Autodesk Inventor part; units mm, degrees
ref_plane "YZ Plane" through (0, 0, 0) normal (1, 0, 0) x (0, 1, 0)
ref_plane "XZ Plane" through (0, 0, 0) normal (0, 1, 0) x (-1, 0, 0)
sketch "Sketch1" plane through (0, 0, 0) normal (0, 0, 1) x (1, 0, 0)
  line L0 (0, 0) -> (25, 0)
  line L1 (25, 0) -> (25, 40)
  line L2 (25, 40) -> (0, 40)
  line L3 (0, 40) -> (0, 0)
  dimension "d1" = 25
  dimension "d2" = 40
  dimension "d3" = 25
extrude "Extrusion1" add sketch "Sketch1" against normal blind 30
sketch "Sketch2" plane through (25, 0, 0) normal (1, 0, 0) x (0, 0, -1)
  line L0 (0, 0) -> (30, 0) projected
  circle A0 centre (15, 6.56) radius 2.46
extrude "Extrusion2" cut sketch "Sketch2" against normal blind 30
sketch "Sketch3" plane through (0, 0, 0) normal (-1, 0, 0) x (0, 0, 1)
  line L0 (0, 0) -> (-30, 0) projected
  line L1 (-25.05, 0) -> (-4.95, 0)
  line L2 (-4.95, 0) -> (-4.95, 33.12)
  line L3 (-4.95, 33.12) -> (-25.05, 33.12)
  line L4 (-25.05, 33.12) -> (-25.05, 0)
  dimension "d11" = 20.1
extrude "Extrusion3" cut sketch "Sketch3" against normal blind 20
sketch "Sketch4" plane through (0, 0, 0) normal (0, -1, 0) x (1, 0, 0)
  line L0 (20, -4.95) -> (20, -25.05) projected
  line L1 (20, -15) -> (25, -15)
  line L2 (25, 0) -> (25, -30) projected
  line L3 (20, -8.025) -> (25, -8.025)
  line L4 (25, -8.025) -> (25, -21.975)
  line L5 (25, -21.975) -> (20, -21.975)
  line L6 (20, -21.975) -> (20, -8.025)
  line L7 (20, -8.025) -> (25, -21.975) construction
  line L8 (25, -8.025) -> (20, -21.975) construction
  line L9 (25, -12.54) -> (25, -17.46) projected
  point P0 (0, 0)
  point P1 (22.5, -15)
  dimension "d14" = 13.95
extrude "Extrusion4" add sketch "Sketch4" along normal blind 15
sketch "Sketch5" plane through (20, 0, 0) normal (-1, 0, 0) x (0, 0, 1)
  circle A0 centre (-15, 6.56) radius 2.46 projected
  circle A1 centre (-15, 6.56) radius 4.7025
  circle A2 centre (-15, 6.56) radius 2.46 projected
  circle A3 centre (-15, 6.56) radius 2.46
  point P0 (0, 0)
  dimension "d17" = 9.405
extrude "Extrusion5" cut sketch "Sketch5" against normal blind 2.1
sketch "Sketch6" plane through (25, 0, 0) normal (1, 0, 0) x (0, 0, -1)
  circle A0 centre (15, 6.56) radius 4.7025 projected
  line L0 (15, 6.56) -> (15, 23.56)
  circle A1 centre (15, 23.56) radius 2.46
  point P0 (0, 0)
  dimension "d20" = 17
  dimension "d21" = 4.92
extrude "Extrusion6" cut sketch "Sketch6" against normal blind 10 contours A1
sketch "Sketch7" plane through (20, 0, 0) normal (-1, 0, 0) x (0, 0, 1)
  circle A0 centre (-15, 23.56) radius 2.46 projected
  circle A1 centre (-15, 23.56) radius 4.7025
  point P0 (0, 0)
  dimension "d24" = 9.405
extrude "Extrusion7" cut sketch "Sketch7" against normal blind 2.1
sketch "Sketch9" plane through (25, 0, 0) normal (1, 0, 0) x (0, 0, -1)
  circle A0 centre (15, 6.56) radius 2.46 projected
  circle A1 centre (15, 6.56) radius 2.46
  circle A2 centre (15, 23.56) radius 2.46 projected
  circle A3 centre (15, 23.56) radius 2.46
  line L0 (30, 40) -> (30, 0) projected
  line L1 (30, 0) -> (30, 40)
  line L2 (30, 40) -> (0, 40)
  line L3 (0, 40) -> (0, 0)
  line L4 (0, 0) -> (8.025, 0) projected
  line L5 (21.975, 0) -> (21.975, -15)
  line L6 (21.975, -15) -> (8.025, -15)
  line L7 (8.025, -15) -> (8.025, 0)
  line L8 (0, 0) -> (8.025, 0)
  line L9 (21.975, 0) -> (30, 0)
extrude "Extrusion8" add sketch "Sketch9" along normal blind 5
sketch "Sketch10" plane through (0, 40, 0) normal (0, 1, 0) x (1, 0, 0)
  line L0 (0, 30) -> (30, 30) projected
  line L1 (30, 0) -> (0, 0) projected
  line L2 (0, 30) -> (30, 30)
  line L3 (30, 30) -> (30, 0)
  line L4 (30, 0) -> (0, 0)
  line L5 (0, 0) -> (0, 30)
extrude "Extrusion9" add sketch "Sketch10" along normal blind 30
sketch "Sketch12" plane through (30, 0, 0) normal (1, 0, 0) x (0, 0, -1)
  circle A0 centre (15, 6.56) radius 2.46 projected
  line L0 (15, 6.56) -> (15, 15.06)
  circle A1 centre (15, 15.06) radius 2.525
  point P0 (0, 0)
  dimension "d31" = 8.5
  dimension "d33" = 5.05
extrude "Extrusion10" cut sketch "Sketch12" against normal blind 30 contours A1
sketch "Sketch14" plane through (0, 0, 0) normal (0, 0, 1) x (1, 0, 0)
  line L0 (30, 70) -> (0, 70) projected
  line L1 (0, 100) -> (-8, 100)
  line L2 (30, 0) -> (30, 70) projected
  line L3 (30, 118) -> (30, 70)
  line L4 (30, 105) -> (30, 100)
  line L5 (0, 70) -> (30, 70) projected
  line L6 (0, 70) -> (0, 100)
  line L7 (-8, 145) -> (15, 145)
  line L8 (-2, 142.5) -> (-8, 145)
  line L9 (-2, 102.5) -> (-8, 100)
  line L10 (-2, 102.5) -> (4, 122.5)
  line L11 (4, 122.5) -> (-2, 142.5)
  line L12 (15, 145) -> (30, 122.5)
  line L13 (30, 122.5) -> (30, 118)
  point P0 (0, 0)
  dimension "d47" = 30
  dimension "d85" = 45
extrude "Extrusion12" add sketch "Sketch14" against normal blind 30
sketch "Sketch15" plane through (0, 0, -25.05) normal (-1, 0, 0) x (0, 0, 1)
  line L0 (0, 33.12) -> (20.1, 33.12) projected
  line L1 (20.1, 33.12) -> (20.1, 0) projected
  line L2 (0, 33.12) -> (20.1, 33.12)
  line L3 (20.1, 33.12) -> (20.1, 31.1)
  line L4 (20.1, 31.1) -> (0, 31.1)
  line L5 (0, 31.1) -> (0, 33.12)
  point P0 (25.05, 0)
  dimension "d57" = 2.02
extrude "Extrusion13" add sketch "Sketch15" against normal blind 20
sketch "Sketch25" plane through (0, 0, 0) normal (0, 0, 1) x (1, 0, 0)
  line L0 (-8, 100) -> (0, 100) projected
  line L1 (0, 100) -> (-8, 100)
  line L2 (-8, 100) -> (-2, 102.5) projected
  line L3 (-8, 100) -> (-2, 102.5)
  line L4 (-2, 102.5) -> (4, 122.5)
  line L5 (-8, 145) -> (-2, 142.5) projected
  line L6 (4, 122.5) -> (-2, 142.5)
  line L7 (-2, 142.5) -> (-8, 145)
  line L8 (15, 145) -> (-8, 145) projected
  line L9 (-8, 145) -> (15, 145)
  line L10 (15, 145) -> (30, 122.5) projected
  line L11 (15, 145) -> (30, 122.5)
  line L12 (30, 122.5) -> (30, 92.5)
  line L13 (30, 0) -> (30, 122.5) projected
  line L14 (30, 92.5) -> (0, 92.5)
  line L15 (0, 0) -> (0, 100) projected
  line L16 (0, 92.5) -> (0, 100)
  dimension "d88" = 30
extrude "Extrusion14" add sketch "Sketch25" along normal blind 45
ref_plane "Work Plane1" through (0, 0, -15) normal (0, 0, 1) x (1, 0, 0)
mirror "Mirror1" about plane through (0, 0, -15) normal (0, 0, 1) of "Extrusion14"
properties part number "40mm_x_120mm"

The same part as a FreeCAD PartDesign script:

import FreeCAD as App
import Part
import Sketcher
Q = App.Units.Quantity

doc = App.newDocument("Part")
body = doc.addObject("PartDesign::Body", "Body")

# Sketch on XY plane
sketch1 = body.newObject("Sketcher::SketchObject", "Sketch")
sketch1.AttachmentSupport = (doc.getObject("XY_Plane"), [""])
sketch1.MapMode = "FlatFace"
sketch1.addGeometry([
    Part.LineSegment(App.Vector(0, 40, 0), App.Vector(0, 0, 0)),
    Part.LineSegment(App.Vector(0, 0, 0), App.Vector(25, 0, 0)),
    Part.LineSegment(App.Vector(25, 0, 0), App.Vector(25, 40, 0)),
    Part.LineSegment(App.Vector(25, 40, 0), App.Vector(0, 40, 0)),
], False)
sketch1.addConstraint([
    Sketcher.Constraint("Coincident", 0, 2, 1, 1),
    Sketcher.Constraint("Coincident", 1, 2, 2, 1),
    Sketcher.Constraint("Coincident", 2, 2, 3, 1),
    Sketcher.Constraint("Coincident", 3, 2, 0, 1),
    Sketcher.Constraint("Vertical", 0),
    Sketcher.Constraint("Horizontal", 1),
    Sketcher.Constraint("Vertical", 2),
    Sketcher.Constraint("Horizontal", 3),
    Sketcher.Constraint("Coincident", 0, 2, -1, 1),
    Sketcher.Constraint("DistanceX", 1, 1, 1, 2, Q("25 mm")),
    Sketcher.Constraint("DistanceY", 0, 2, 0, 1, Q("40 mm")),
])
pad1 = body.newObject("PartDesign::Pad", "Pad")
pad1.Profile = sketch1
pad1.Length = 30
pad1.Reversed = True

# Sketch on YZ plane
sketch2 = body.newObject("Sketcher::SketchObject", "Sketch001")
sketch2.AttachmentSupport = (doc.getObject("YZ_Plane"), [""])
sketch2.MapMode = "FlatFace"
sketch2.AttachmentOffset = App.Placement(App.Vector(0, 0, 25), App.Rotation())
sketch2.addGeometry(Part.Circle(App.Vector(6.6, -15, 0), App.Vector(0, 0, 1), 2.5), False)
sketch2.addConstraint([
    Sketcher.Constraint("Diameter", 0, Q("4.92 mm")),
    Sketcher.Constraint("DistanceY", 0, 3, -1, 1, Q("15 mm")),
    Sketcher.Constraint("DistanceX", -1, 1, 0, 3, Q("6.56 mm")),
])
pocket1 = body.newObject("PartDesign::Pocket", "Pocket")
pocket1.Profile = sketch2
pocket1.Length = 30

# Sketch on YZ plane
sketch3 = body.newObject("Sketcher::SketchObject", "Sketch002")
sketch3.AttachmentSupport = (doc.getObject("YZ_Plane"), [""])
sketch3.MapMode = "FlatFace"
sketch3.addGeometry([
    Part.LineSegment(App.Vector(0, -25, 0), App.Vector(0, -5, 0)),
    Part.LineSegment(App.Vector(0, -5, 0), App.Vector(33, -5, 0)),
    Part.LineSegment(App.Vector(33, -5, 0), App.Vector(33, -25, 0)),
    Part.LineSegment(App.Vector(33, -25, 0), App.Vector(0, -25, 0)),
], False)
sketch3.addConstraint([
    Sketcher.Constraint("Coincident", 0, 2, 1, 1),
    Sketcher.Constraint("Coincident", 1, 2, 2, 1),
    Sketcher.Constraint("Coincident", 2, 2, 3, 1),
    Sketcher.Constraint("Coincident", 3, 2, 0, 1),
    Sketcher.Constraint("Vertical", 0),
    Sketcher.Constraint("Horizontal", 1),
    Sketcher.Constraint("Vertical", 2),
    Sketcher.Constraint("Horizontal", 3),
    Sketcher.Constraint("PointOnObject", 0, 2, -2),
    Sketcher.Constraint("DistanceY", 0, 1, 0, 2, Q("20.1 mm")),
    Sketcher.Constraint("DistanceX", 1, 1, 1, 2, Q("33.12 mm")),
    Sketcher.Constraint("DistanceY", 0, 2, -1, 1, Q("4.95 mm")),
])
pocket2 = body.newObject("PartDesign::Pocket", "Pocket001")
pocket2.Profile = sketch3
pocket2.Length = 20
pocket2.Reversed = True

# Sketch on XZ plane
sketch4 = body.newObject("Sketcher::SketchObject", "Sketch003")
sketch4.AttachmentSupport = (doc.getObject("XZ_Plane"), [""])
sketch4.MapMode = "FlatFace"
sketch4.addGeometry([
    Part.LineSegment(App.Vector(25, -8, 0), App.Vector(20, -8, 0)),
    Part.LineSegment(App.Vector(20, -8, 0), App.Vector(20, -22, 0)),
    Part.LineSegment(App.Vector(20, -22, 0), App.Vector(25, -22, 0)),
    Part.LineSegment(App.Vector(25, -22, 0), App.Vector(25, -8, 0)),
], False)
sketch4.addConstraint([
    Sketcher.Constraint("Coincident", 0, 2, 1, 1),
    Sketcher.Constraint("Coincident", 1, 2, 2, 1),
    Sketcher.Constraint("Coincident", 2, 2, 3, 1),
    Sketcher.Constraint("Coincident", 3, 2, 0, 1),
    Sketcher.Constraint("Horizontal", 0),
    Sketcher.Constraint("Vertical", 1),
    Sketcher.Constraint("Horizontal", 2),
    Sketcher.Constraint("Vertical", 3),
    Sketcher.Constraint("DistanceY", 1, 2, 1, 1, Q("13.95 mm")),
    Sketcher.Constraint("DistanceX", 0, 2, 0, 1, Q("5 mm")),
    Sketcher.Constraint("DistanceX", -1, 1, 0, 2, Q("20 mm")),
    Sketcher.Constraint("DistanceY", 0, 2, -1, 1, Q("8.025 mm")),
])
pad2 = body.newObject("PartDesign::Pad", "Pad001")
pad2.Profile = sketch4
pad2.Length = 15

# Sketch on YZ plane
sketch5 = body.newObject("Sketcher::SketchObject", "Sketch004")
sketch5.AttachmentSupport = (doc.getObject("YZ_Plane"), [""])
sketch5.MapMode = "FlatFace"
sketch5.AttachmentOffset = App.Placement(App.Vector(0, 0, 20), App.Rotation())
sketch5.addGeometry([
    Part.Circle(App.Vector(6.6, -15, 0), App.Vector(0, 0, 1), 4.7),
    Part.Circle(App.Vector(6.6, -15, 0), App.Vector(0, 0, 1), 2.5),
], False)
sketch5.addConstraint([
    Sketcher.Constraint("Coincident", 1, 3, 0, 3),
    Sketcher.Constraint("Diameter", 0, Q("9.405 mm")),
    Sketcher.Constraint("Diameter", 1, Q("4.92 mm")),
    Sketcher.Constraint("DistanceY", 0, 3, -1, 1, Q("15 mm")),
    Sketcher.Constraint("DistanceX", -1, 1, 0, 3, Q("6.56 mm")),
])
pocket3 = body.newObject("PartDesign::Pocket", "Pocket002")
pocket3.Profile = sketch5
pocket3.Length = 2.1
pocket3.Reversed = True

# Sketch on YZ plane
sketch6 = body.newObject("Sketcher::SketchObject", "Sketch005")
sketch6.AttachmentSupport = (doc.getObject("YZ_Plane"), [""])
sketch6.MapMode = "FlatFace"
sketch6.AttachmentOffset = App.Placement(App.Vector(0, 0, 25), App.Rotation())
sketch6.addGeometry(Part.Circle(App.Vector(23.6, -15, 0), App.Vector(0, 0, 1), 2.5), False)
sketch6.addConstraint([
    Sketcher.Constraint("Diameter", 0, Q("4.92 mm")),
    Sketcher.Constraint("DistanceY", 0, 3, -1, 1, Q("15 mm")),
    Sketcher.Constraint("DistanceX", -1, 1, 0, 3, Q("23.56 mm")),
])
pocket4 = body.newObject("PartDesign::Pocket", "Pocket003")
pocket4.Profile = sketch6
pocket4.Length = 10

# Sketch on YZ plane
sketch7 = body.newObject("Sketcher::SketchObject", "Sketch006")
sketch7.AttachmentSupport = (doc.getObject("YZ_Plane"), [""])
sketch7.MapMode = "FlatFace"
sketch7.AttachmentOffset = App.Placement(App.Vector(0, 0, 20), App.Rotation())
sketch7.addGeometry([
    Part.Circle(App.Vector(23.6, -15, 0), App.Vector(0, 0, 1), 4.7),
    Part.Circle(App.Vector(23.6, -15, 0), App.Vector(0, 0, 1), 2.5),
], False)
sketch7.addConstraint([
    Sketcher.Constraint("Coincident", 1, 3, 0, 3),
    Sketcher.Constraint("Diameter", 0, Q("9.405 mm")),
    Sketcher.Constraint("Diameter", 1, Q("4.92 mm")),
    Sketcher.Constraint("DistanceY", 0, 3, -1, 1, Q("15 mm")),
    Sketcher.Constraint("DistanceX", -1, 1, 0, 3, Q("23.56 mm")),
])
pocket5 = body.newObject("PartDesign::Pocket", "Pocket004")
pocket5.Profile = sketch7
pocket5.Length = 2.1
pocket5.Reversed = True

# Sketch on YZ plane
sketch8 = body.newObject("Sketcher::SketchObject", "Sketch007")
sketch8.AttachmentSupport = (doc.getObject("YZ_Plane"), [""])
sketch8.MapMode = "FlatFace"
sketch8.AttachmentOffset = App.Placement(App.Vector(0, 0, 25), App.Rotation())
sketch8.addGeometry([
    Part.LineSegment(App.Vector(0, -30, 0), App.Vector(40, -30, 0)),  # 0
    Part.LineSegment(App.Vector(40, -30, 0), App.Vector(40, 0, 0)),  # 1
    Part.LineSegment(App.Vector(40, 0, 0), App.Vector(0, 0, 0)),  # 2
    Part.LineSegment(App.Vector(0, 0, 0), App.Vector(0, -8, 0)),  # 3
    Part.LineSegment(App.Vector(0, -8, 0), App.Vector(-15, -8, 0)),  # 4
    Part.LineSegment(App.Vector(-15, -8, 0), App.Vector(-15, -22, 0)),  # 5
    Part.LineSegment(App.Vector(-15, -22, 0), App.Vector(0, -22, 0)),  # 6
    Part.LineSegment(App.Vector(0, -22, 0), App.Vector(0, -30, 0)),  # 7
    Part.Circle(App.Vector(6.6, -15, 0), App.Vector(0, 0, 1), 2.5),  # 8
    Part.Circle(App.Vector(23.6, -15, 0), App.Vector(0, 0, 1), 2.5),  # 9
], False)
sketch8.addConstraint([
    Sketcher.Constraint("Coincident", 0, 2, 1, 1),
    Sketcher.Constraint("Coincident", 1, 2, 2, 1),
    Sketcher.Constraint("Coincident", 2, 2, 3, 1),
    Sketcher.Constraint("Coincident", 3, 2, 4, 1),
    Sketcher.Constraint("Coincident", 4, 2, 5, 1),
    Sketcher.Constraint("Coincident", 5, 2, 6, 1),
    Sketcher.Constraint("Coincident", 6, 2, 7, 1),
    Sketcher.Constraint("Coincident", 7, 2, 0, 1),
    Sketcher.Constraint("Horizontal", 0),
    Sketcher.Constraint("Vertical", 1),
    Sketcher.Constraint("Horizontal", 2),
    Sketcher.Constraint("Vertical", 3),
    Sketcher.Constraint("Horizontal", 4),
    Sketcher.Constraint("Vertical", 5),
    Sketcher.Constraint("Horizontal", 6),
    Sketcher.Constraint("Vertical", 7),
    Sketcher.Constraint("Coincident", 2, 2, -1, 1),
    Sketcher.Constraint("Equal", 8, 9),
    Sketcher.Constraint("PointOnObject", 6, 2, -2),
    Sketcher.Constraint("Horizontal", 8, 3, 9, 3),
    Sketcher.Constraint("Equal", 3, 7),
    Sketcher.Constraint("Diameter", 8, Q("4.92 mm")),
    Sketcher.Constraint("DistanceX", 0, 1, 0, 2, Q("40 mm")),
    Sketcher.Constraint("DistanceX", 4, 2, 4, 1, Q("15 mm")),
    Sketcher.Constraint("DistanceY", 1, 1, 1, 2, Q("30 mm")),
    Sketcher.Constraint("DistanceY", 8, 3, -1, 1, Q("15 mm")),
    Sketcher.Constraint("DistanceX", 8, 3, 9, 3, Q("17 mm")),
    Sketcher.Constraint("DistanceY", 5, 2, 5, 1, Q("13.95 mm")),
    Sketcher.Constraint("DistanceX", -1, 1, 8, 3, Q("6.56 mm")),
])
pad3 = body.newObject("PartDesign::Pad", "Pad002")
pad3.Profile = sketch8
pad3.Length = 5

# Sketch on XZ plane
sketch9 = body.newObject("Sketcher::SketchObject", "Sketch008")
sketch9.AttachmentSupport = (doc.getObject("XZ_Plane"), [""])
sketch9.MapMode = "FlatFace"
sketch9.AttachmentOffset = App.Placement(App.Vector(0, 0, -40), App.Rotation())
sketch9.addGeometry([
    Part.LineSegment(App.Vector(30, -30, 0), App.Vector(0, -30, 0)),
    Part.LineSegment(App.Vector(0, -30, 0), App.Vector(0, 0, 0)),
    Part.LineSegment(App.Vector(0, 0, 0), App.Vector(30, 0, 0)),
    Part.LineSegment(App.Vector(30, 0, 0), App.Vector(30, -30, 0)),
], False)
sketch9.addConstraint([
    Sketcher.Constraint("Coincident", 0, 2, 1, 1),
    Sketcher.Constraint("Coincident", 1, 2, 2, 1),
    Sketcher.Constraint("Coincident", 2, 2, 3, 1),
    Sketcher.Constraint("Coincident", 3, 2, 0, 1),
    Sketcher.Constraint("Horizontal", 0),
    Sketcher.Constraint("Vertical", 1),
    Sketcher.Constraint("Horizontal", 2),
    Sketcher.Constraint("Vertical", 3),
    Sketcher.Constraint("Coincident", 1, 2, -1, 1),
    Sketcher.Constraint("Equal", 2, 1),
    Sketcher.Constraint("DistanceX", 0, 2, 0, 1, Q("30 mm")),
])
pad4 = body.newObject("PartDesign::Pad", "Pad003")
pad4.Profile = sketch9
pad4.Length = 30
pad4.Reversed = True

# Sketch on YZ plane
sketch10 = body.newObject("Sketcher::SketchObject", "Sketch009")
sketch10.AttachmentSupport = (doc.getObject("YZ_Plane"), [""])
sketch10.MapMode = "FlatFace"
sketch10.AttachmentOffset = App.Placement(App.Vector(0, 0, 30), App.Rotation())
sketch10.addGeometry(Part.Circle(App.Vector(15.1, -15, 0), App.Vector(0, 0, 1), 2.5), False)
sketch10.addConstraint([
    Sketcher.Constraint("Diameter", 0, Q("5.05 mm")),
    Sketcher.Constraint("DistanceY", 0, 3, -1, 1, Q("15 mm")),
    Sketcher.Constraint("DistanceX", -1, 1, 0, 3, Q("15.06 mm")),
])
pocket6 = body.newObject("PartDesign::Pocket", "Pocket005")
pocket6.Profile = sketch10
pocket6.Length = 30

# Sketch on XY plane
sketch11 = body.newObject("Sketcher::SketchObject", "Sketch010")
sketch11.AttachmentSupport = (doc.getObject("XY_Plane"), [""])
sketch11.MapMode = "FlatFace"
sketch11.addGeometry([
    Part.LineSegment(App.Vector(0, 70, 0), App.Vector(30, 70, 0)),  # 0
    Part.LineSegment(App.Vector(30, 70, 0), App.Vector(30, 122, 0)),  # 1
    Part.LineSegment(App.Vector(30, 122, 0), App.Vector(15, 145, 0)),  # 2
    Part.LineSegment(App.Vector(15, 145, 0), App.Vector(-8, 145, 0)),  # 3
    Part.LineSegment(App.Vector(-8, 145, 0), App.Vector(-2, 142, 0)),  # 4
    Part.LineSegment(App.Vector(-2, 142, 0), App.Vector(4, 122, 0)),  # 5
    Part.LineSegment(App.Vector(4, 122, 0), App.Vector(-2, 102, 0)),  # 6
    Part.LineSegment(App.Vector(-2, 102, 0), App.Vector(-8, 100, 0)),  # 7
    Part.LineSegment(App.Vector(-8, 100, 0), App.Vector(0, 100, 0)),  # 8
    Part.LineSegment(App.Vector(0, 100, 0), App.Vector(0, 70, 0)),  # 9
], False)
sketch11.addConstraint([
    Sketcher.Constraint("Coincident", 0, 2, 1, 1),
    Sketcher.Constraint("Coincident", 1, 2, 2, 1),
    Sketcher.Constraint("Coincident", 2, 2, 3, 1),
    Sketcher.Constraint("Coincident", 3, 2, 4, 1),
    Sketcher.Constraint("Coincident", 4, 2, 5, 1),
    Sketcher.Constraint("Coincident", 5, 2, 6, 1),
    Sketcher.Constraint("Coincident", 6, 2, 7, 1),
    Sketcher.Constraint("Coincident", 7, 2, 8, 1),
    Sketcher.Constraint("Coincident", 8, 2, 9, 1),
    Sketcher.Constraint("Coincident", 9, 2, 0, 1),
    Sketcher.Constraint("Horizontal", 0),
    Sketcher.Constraint("Vertical", 1),
    Sketcher.Constraint("Horizontal", 3),
    Sketcher.Constraint("Horizontal", 8),
    Sketcher.Constraint("Vertical", 9),
    Sketcher.Constraint("PointOnObject", 8, 2, -2),
    Sketcher.Constraint("Horizontal", 1, 2, 5, 2),
    Sketcher.Constraint("Vertical", 4, 2, 6, 2),
    Sketcher.Constraint("Vertical", 3, 2, 7, 2),
    Sketcher.Constraint("Equal", 0, 9),
    Sketcher.Constraint("Equal", 5, 6),
    Sketcher.Constraint("Equal", 4, 7),
    Sketcher.Constraint("DistanceX", 0, 1, 0, 2, Q("30 mm")),
    Sketcher.Constraint("DistanceY", 7, 2, 3, 2, Q("45 mm")),
    Sketcher.Constraint("DistanceX", 3, 2, 3, 1, Q("23 mm")),
    Sketcher.Constraint("DistanceX", 8, 1, 8, 2, Q("8 mm")),
    Sketcher.Constraint("DistanceY", -1, 1, 0, 2, Q("70 mm")),
    Sketcher.Constraint("DistanceX", 4, 2, -1, 1, Q("2 mm")),
    Sketcher.Constraint("DistanceX", -1, 1, 5, 2, Q("4 mm")),
    Sketcher.Constraint("Angle", 5, Q("-73.3008 deg")),
])
pad5 = body.newObject("PartDesign::Pad", "Pad004")
pad5.Profile = sketch11
pad5.Length = 30
pad5.Reversed = True

# Sketch on YZ plane
sketch12 = body.newObject("Sketcher::SketchObject", "Sketch011")
sketch12.AttachmentSupport = (doc.getObject("YZ_Plane"), [""])
sketch12.MapMode = "FlatFace"
sketch12.addGeometry([
    Part.LineSegment(App.Vector(33.1, -5, 0), App.Vector(33.1, -25.1, 0)),
    Part.LineSegment(App.Vector(33.1, -25.1, 0), App.Vector(31.1, -25.1, 0)),
    Part.LineSegment(App.Vector(31.1, -25.1, 0), App.Vector(31.1, -5, 0)),
    Part.LineSegment(App.Vector(31.1, -5, 0), App.Vector(33.1, -5, 0)),
], False)
sketch12.addConstraint([
    Sketcher.Constraint("Coincident", 0, 2, 1, 1),
    Sketcher.Constraint("Coincident", 1, 2, 2, 1),
    Sketcher.Constraint("Coincident", 2, 2, 3, 1),
    Sketcher.Constraint("Coincident", 3, 2, 0, 1),
    Sketcher.Constraint("Vertical", 0),
    Sketcher.Constraint("Horizontal", 1),
    Sketcher.Constraint("Vertical", 2),
    Sketcher.Constraint("Horizontal", 3),
    Sketcher.Constraint("DistanceX", 1, 2, 1, 1, Q("2.02 mm")),
    Sketcher.Constraint("DistanceY", 0, 2, 0, 1, Q("20.1 mm")),
    Sketcher.Constraint("DistanceX", -1, 1, 1, 2, Q("31.1 mm")),
    Sketcher.Constraint("DistanceY", 0, 2, -1, 1, Q("25.05 mm")),
])
pad6 = body.newObject("PartDesign::Pad", "Pad005")
pad6.Profile = sketch12
pad6.Length = 20

# Sketch on XY plane
sketch13 = body.newObject("Sketcher::SketchObject", "Sketch012")
sketch13.AttachmentSupport = (doc.getObject("XY_Plane"), [""])
sketch13.MapMode = "FlatFace"
sketch13.addGeometry([
    Part.LineSegment(App.Vector(-2, 102, 0), App.Vector(-8, 100, 0)),  # 0
    Part.LineSegment(App.Vector(-8, 100, 0), App.Vector(0, 100, 0)),  # 1
    Part.LineSegment(App.Vector(0, 100, 0), App.Vector(0, 92, 0)),  # 2
    Part.LineSegment(App.Vector(0, 92, 0), App.Vector(30, 92, 0)),  # 3
    Part.LineSegment(App.Vector(30, 92, 0), App.Vector(30, 122, 0)),  # 4
    Part.LineSegment(App.Vector(30, 122, 0), App.Vector(15, 145, 0)),  # 5
    Part.LineSegment(App.Vector(15, 145, 0), App.Vector(-8, 145, 0)),  # 6
    Part.LineSegment(App.Vector(-8, 145, 0), App.Vector(-2, 142, 0)),  # 7
    Part.LineSegment(App.Vector(-2, 142, 0), App.Vector(4, 122, 0)),  # 8
    Part.LineSegment(App.Vector(4, 122, 0), App.Vector(-2, 102, 0)),  # 9
], False)
sketch13.addConstraint([
    Sketcher.Constraint("Coincident", 0, 2, 1, 1),
    Sketcher.Constraint("Coincident", 1, 2, 2, 1),
    Sketcher.Constraint("Coincident", 2, 2, 3, 1),
    Sketcher.Constraint("Coincident", 3, 2, 4, 1),
    Sketcher.Constraint("Coincident", 4, 2, 5, 1),
    Sketcher.Constraint("Coincident", 5, 2, 6, 1),
    Sketcher.Constraint("Coincident", 6, 2, 7, 1),
    Sketcher.Constraint("Coincident", 7, 2, 8, 1),
    Sketcher.Constraint("Coincident", 8, 2, 9, 1),
    Sketcher.Constraint("Coincident", 9, 2, 0, 1),
    Sketcher.Constraint("Horizontal", 1),
    Sketcher.Constraint("Vertical", 2),
    Sketcher.Constraint("Horizontal", 3),
    Sketcher.Constraint("Vertical", 4),
    Sketcher.Constraint("Horizontal", 6),
    Sketcher.Constraint("PointOnObject", 1, 2, -2),
    Sketcher.Constraint("Horizontal", 4, 2, 8, 2),
    Sketcher.Constraint("Vertical", 0, 2, 6, 2),
    Sketcher.Constraint("Vertical", 7, 2, 9, 2),
    Sketcher.Constraint("Equal", 3, 4),
    Sketcher.Constraint("Equal", 0, 7),
    Sketcher.Constraint("Equal", 8, 9),
    Sketcher.Constraint("DistanceX", 3, 1, 3, 2, Q("30 mm")),
    Sketcher.Constraint("DistanceX", 1, 1, 1, 2, Q("8 mm")),
    Sketcher.Constraint("DistanceX", 6, 2, 6, 1, Q("23 mm")),
    Sketcher.Constraint("DistanceY", 2, 2, 2, 1, Q("7.5 mm")),
    Sketcher.Constraint("DistanceY", -1, 1, 0, 2, Q("100 mm")),
    Sketcher.Constraint("DistanceX", 7, 2, -1, 1, Q("2 mm")),
    Sketcher.Constraint("DistanceX", -1, 1, 8, 2, Q("4 mm")),
    Sketcher.Constraint("Angle", 8, Q("-73.3008 deg")),
])
pad7 = body.newObject("PartDesign::Pad", "Pad006")
pad7.Profile = sketch13
pad7.Length = 45
doc.recompute()

datumplane = body.newObject("PartDesign::Plane", "DatumPlane")
datumplane.AttachmentSupport = (doc.getObject("XY_Plane"), [""])
datumplane.MapMode = "FlatFace"
datumplane.AttachmentOffset = App.Placement(App.Vector(0, 0, -15), App.Rotation())
mirrored = body.newObject("PartDesign::Mirrored", "Mirrored")
mirrored.Originals = [pad7]
mirrored.MirrorPlane = (datumplane, [""])
body.Tip = mirrored

doc.recompute()
